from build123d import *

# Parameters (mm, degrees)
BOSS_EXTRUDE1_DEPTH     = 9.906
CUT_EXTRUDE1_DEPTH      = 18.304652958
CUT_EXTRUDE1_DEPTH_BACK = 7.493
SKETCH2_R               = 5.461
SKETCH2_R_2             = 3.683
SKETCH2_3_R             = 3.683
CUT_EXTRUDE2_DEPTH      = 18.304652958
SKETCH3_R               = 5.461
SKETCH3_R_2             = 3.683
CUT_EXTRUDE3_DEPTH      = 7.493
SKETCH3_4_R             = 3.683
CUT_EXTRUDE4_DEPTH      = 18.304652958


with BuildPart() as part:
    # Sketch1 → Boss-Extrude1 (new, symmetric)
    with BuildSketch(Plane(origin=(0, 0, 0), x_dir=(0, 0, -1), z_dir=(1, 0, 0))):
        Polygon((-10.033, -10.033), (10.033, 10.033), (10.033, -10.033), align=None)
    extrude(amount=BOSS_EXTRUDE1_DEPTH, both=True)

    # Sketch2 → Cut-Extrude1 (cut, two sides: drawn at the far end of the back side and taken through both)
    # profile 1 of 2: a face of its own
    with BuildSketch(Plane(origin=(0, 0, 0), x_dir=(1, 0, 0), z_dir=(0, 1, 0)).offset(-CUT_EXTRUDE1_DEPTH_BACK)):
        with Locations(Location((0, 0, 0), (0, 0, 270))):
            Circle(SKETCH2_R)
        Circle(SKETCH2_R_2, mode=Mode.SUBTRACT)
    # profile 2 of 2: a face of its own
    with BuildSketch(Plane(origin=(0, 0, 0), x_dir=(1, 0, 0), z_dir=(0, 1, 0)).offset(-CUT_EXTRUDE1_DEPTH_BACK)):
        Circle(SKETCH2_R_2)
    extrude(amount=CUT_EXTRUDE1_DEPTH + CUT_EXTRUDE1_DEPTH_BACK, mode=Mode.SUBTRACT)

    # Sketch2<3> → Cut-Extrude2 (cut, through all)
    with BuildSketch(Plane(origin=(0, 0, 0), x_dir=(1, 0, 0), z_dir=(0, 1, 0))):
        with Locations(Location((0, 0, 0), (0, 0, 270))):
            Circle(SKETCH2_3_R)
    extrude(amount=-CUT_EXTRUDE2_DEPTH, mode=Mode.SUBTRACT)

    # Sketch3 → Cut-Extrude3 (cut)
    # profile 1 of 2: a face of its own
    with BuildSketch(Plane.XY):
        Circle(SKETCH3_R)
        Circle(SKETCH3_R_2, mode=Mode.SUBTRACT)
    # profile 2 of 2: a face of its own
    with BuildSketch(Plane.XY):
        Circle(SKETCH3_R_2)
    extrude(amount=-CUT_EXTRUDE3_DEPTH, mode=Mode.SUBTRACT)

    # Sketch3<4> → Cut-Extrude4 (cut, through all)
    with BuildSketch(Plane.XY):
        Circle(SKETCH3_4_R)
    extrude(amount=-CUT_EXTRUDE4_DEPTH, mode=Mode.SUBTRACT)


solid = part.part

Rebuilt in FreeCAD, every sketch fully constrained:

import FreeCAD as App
import Part
import Sketcher

V = App.Vector
Q = App.Units.Quantity


def add_polygon(sketch, points):
    """Adds a closed chain of lines whose ends are joined by coincident constraints."""
    first, n = sketch.GeometryCount, len(points)
    for a, b in zip(points, points[1:] + points[:1]):
        sketch.addGeometry(Part.LineSegment(App.Vector(*a, 0), App.Vector(*b, 0)), False)
    for i in range(n):
        sketch.addConstraint(Sketcher.Constraint("Coincident", first + i, 2, first + (i + 1) % n, 1))

doc = App.newDocument("Part")
body = doc.addObject("PartDesign::Body", "Body")

# Sketch on YZ plane
sketch1 = body.newObject("Sketcher::SketchObject", "Sketch")
sketch1.AttachmentSupport = (doc.getObject("YZ_Plane"), [""])
sketch1.MapMode = "FlatFace"
add_polygon(sketch1, [(10, -10), (-10, 10), (-10, -10)])  # lines 0-2
sketch1.addConstraint(Sketcher.Constraint("Vertical", 1))
sketch1.addConstraint(Sketcher.Constraint("Horizontal", 2))
sketch1.addConstraint(Sketcher.Constraint("Symmetric", 0, 2, 2, 2, -1, 1))
sketch1.addConstraint(Sketcher.Constraint("Equal", 2, 1))
sketch1.addConstraint(Sketcher.Constraint("DistanceX", 2, 1, 2, 2, Q("0.79 in")))
pad1 = body.newObject("PartDesign::Pad", "Pad")
pad1.Profile = sketch1
pad1.Length = Q("0.78 in")
pad1.Midplane = True

# Sketch on XZ plane
sketch2 = body.newObject("Sketcher::SketchObject", "Sketch001")
sketch2.AttachmentSupport = (doc.getObject("XZ_Plane"), [""])
sketch2.MapMode = "FlatFace"
sketch2.addGeometry(Part.Circle(V(0, 0, 0), V(0, 0, 1), 5), False)
sketch2.addConstraint(Sketcher.Constraint("Coincident", 0, 3, -1, 1))
sketch2.addConstraint(Sketcher.Constraint("Diameter", 0, Q("0.43 in")))
pocket1 = body.newObject("PartDesign::Pocket", "Pocket")
pocket1.Profile = sketch2
pocket1.Type = "TwoLengths"
pocket1.Length = 18.304653
pocket1.Length2 = Q("0.295 in")

# Sketch on XZ plane
sketch3 = body.newObject("Sketcher::SketchObject", "Sketch002")
sketch3.AttachmentSupport = (doc.getObject("XZ_Plane"), [""])
sketch3.MapMode = "FlatFace"
sketch3.addGeometry(Part.Circle(V(0, 0, 0), V(0, 0, 1), 3.7), False)
sketch3.addConstraint(Sketcher.Constraint("Coincident", 0, 3, -1, 1))
sketch3.addConstraint(Sketcher.Constraint("Diameter", 0, Q("0.29 in")))
pocket2 = body.newObject("PartDesign::Pocket", "Pocket001")
pocket2.Profile = sketch3
pocket2.Type = "ThroughAll"
pocket2.Reversed = True

# Sketch on XY plane
sketch4 = body.newObject("Sketcher::SketchObject", "Sketch003")
sketch4.AttachmentSupport = (doc.getObject("XY_Plane"), [""])
sketch4.MapMode = "FlatFace"
sketch4.addGeometry(Part.Circle(V(0, 0, 0), V(0, 0, 1), 5), False)
sketch4.addConstraint(Sketcher.Constraint("Coincident", 0, 3, -1, 1))
sketch4.addConstraint(Sketcher.Constraint("Diameter", 0, Q("0.43 in")))
pocket3 = body.newObject("PartDesign::Pocket", "Pocket002")
pocket3.Profile = sketch4
pocket3.Length = Q("0.295 in")

# Sketch on XY plane
sketch5 = body.newObject("Sketcher::SketchObject", "Sketch004")
sketch5.AttachmentSupport = (doc.getObject("XY_Plane"), [""])
sketch5.MapMode = "FlatFace"
sketch5.addGeometry(Part.Circle(V(0, 0, 0), V(0, 0, 1), 3.7), False)
sketch5.addConstraint(Sketcher.Constraint("Coincident", 0, 3, -1, 1))
sketch5.addConstraint(Sketcher.Constraint("Diameter", 0, Q("0.29 in")))
pocket4 = body.newObject("PartDesign::Pocket", "Pocket003")
pocket4.Profile = sketch5
pocket4.Type = "ThroughAll"

doc.recompute()
